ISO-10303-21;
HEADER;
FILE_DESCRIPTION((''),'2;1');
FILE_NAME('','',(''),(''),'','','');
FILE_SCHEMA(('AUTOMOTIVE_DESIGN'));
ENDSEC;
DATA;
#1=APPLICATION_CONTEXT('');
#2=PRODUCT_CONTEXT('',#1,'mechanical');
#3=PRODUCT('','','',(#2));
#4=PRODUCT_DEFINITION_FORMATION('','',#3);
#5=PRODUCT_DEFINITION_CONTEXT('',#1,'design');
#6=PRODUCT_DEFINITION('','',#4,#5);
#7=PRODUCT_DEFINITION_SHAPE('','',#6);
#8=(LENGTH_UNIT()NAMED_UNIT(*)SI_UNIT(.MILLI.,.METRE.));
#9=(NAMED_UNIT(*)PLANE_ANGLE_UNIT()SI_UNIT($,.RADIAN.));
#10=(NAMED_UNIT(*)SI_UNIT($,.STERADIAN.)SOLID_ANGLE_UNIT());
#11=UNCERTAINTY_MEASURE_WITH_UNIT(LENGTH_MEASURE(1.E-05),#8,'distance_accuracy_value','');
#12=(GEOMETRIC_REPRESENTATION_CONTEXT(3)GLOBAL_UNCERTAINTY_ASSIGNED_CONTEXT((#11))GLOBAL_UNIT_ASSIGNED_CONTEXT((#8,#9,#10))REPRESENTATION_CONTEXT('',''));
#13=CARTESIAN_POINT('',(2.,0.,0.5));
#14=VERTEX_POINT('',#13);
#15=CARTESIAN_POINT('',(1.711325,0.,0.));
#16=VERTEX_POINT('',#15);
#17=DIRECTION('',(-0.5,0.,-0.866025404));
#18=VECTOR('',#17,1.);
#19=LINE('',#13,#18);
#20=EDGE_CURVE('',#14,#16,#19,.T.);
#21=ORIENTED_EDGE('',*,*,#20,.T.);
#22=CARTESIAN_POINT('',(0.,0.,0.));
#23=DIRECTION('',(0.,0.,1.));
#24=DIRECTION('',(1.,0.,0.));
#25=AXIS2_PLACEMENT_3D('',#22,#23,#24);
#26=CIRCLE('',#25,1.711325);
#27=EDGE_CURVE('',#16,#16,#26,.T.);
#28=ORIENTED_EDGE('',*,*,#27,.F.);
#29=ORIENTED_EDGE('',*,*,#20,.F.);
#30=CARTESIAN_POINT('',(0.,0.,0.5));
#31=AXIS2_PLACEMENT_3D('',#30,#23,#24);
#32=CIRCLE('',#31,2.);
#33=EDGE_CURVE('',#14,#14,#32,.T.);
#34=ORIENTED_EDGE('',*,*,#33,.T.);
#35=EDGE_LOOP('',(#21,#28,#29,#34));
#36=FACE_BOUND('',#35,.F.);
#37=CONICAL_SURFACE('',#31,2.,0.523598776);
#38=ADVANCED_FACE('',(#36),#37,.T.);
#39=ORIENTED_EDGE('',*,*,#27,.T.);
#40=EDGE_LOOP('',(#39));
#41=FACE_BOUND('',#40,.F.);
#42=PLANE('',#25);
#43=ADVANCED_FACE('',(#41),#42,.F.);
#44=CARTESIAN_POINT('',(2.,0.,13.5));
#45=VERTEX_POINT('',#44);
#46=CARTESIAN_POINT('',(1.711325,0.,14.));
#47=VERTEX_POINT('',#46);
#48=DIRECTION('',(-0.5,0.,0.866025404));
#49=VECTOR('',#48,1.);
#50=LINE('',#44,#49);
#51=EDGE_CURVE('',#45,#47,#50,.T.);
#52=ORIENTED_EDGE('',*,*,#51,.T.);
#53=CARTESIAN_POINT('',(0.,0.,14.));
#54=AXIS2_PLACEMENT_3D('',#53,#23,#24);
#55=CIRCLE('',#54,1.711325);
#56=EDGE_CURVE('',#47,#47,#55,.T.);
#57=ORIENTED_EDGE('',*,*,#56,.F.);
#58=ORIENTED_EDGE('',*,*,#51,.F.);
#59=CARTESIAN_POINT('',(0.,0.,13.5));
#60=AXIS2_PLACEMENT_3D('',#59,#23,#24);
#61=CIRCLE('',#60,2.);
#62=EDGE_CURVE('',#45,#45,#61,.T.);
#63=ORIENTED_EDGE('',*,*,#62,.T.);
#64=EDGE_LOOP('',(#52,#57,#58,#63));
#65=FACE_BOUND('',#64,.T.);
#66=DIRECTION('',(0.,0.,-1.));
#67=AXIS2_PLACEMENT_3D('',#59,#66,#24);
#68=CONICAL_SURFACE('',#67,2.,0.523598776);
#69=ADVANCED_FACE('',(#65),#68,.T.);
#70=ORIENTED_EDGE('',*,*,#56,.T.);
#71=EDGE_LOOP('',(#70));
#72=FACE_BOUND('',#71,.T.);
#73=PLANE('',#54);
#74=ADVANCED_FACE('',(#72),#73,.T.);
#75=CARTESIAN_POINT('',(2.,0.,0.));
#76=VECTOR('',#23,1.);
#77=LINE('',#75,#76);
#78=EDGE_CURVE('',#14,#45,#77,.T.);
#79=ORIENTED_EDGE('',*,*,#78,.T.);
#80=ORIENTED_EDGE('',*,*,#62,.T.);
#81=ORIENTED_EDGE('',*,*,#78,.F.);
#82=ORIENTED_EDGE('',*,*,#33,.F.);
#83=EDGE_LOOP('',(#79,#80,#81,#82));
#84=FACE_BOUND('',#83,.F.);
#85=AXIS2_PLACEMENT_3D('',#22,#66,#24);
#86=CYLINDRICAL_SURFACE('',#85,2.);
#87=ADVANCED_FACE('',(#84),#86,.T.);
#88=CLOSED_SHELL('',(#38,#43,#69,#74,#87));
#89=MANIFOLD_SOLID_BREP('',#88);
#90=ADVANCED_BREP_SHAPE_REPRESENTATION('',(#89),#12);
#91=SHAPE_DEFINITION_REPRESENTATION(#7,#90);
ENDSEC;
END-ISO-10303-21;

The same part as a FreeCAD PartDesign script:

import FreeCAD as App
import Part
import Sketcher


def edges_at(feature, points):
    """Names of the edges that pass closest to the given points."""
    edges = feature.Shape.Edges
    near = lambda p: min(range(len(edges)), key=lambda i: edges[i].distToShape(Part.Vertex(*p))[0])
    return sorted({f"Edge{near(p) + 1}" for p in points})

doc = App.newDocument("Part")
body = doc.addObject("PartDesign::Body", "Body")

sketch1 = doc.addObject("Sketcher::SketchObject", "Sketch")
body.addObject(sketch1)
sketch1.AttachmentSupport = (doc.XY_Plane, [""])
sketch1.MapMode = "FlatFace"
sketch1.addGeometry(Part.Circle(App.Vector(0, 0, 0), App.Vector(0, 0, 1), 2), False)
sketch1.addConstraint(Sketcher.Constraint("Coincident", 0, 3, -1, 1))
sketch1.addConstraint(Sketcher.Constraint("Diameter", 0, 4.0))
pad1 = doc.addObject("PartDesign::Pad", "Pad")
body.addObject(pad1)
pad1.Profile = sketch1
pad1.Length = 14
doc.recompute()

chamfer = doc.addObject("PartDesign::Chamfer", "Chamfer")
body.addObject(chamfer)
chamfer.Base = (pad1, edges_at(pad1, [(-2, 0, 14), (-2, 0, 0)]))
chamfer.ChamferType = "Distance and Angle"
chamfer.Size = 0.5
chamfer.Angle = 30

doc.recompute()
